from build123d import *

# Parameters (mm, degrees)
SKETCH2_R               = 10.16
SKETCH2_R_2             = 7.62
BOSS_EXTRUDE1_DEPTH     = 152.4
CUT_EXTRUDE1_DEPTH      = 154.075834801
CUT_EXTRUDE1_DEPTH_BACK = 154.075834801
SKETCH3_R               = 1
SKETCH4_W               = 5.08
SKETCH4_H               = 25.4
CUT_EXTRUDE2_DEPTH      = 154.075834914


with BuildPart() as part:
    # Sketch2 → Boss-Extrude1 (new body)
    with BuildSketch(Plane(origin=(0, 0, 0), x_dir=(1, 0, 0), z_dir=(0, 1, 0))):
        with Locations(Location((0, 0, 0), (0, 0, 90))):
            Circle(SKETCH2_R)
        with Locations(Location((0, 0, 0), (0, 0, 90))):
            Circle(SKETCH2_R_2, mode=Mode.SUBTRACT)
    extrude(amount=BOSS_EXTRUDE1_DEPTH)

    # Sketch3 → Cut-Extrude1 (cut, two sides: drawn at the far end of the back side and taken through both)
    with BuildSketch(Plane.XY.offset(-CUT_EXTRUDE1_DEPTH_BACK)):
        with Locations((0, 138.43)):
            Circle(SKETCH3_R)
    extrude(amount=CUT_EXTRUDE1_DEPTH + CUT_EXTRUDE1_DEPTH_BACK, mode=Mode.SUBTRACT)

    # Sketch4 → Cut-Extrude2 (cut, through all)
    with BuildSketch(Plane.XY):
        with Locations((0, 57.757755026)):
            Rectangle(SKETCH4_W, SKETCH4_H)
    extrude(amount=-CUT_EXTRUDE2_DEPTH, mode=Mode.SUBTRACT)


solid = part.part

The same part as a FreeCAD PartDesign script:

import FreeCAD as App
import Part
import Sketcher
from FreeCAD import Vector
Q = App.Units.Quantity


def add_polygon(sketch, points):
    """Adds a closed chain of lines whose ends are joined by coincident constraints."""
    first, n = sketch.GeometryCount, len(points)
    for a, b in zip(points, points[1:] + points[:1]):
        sketch.addGeometry(Part.LineSegment(App.Vector(*a, 0), App.Vector(*b, 0)), False)
    for i in range(n):
        sketch.addConstraint(Sketcher.Constraint("Coincident", first + i, 2, first + (i + 1) % n, 1))

doc = App.newDocument("Part")
body = doc.addObject("PartDesign::Body", "Body")

# Sketch on XZ plane
sketch1 = body.newObject("Sketcher::SketchObject", "Sketch")
sketch1.AttachmentSupport = (doc.getObject("XZ_Plane"), [""])
sketch1.MapMode = "FlatFace"
sketch1.addGeometry([
    Part.Circle(Vector(0, 0, 0), Vector(0, 0, 1), 10),
    Part.Circle(Vector(0, 0, 0), Vector(0, 0, 1), 8),
], False)
sketch1.addConstraint([
    Sketcher.Constraint("Coincident", 0, 3, -1, 1),
    Sketcher.Constraint("Coincident", 1, 3, -1, 1),
    Sketcher.Constraint("Diameter", 0, Q("0.8 in")),
    Sketcher.Constraint("Diameter", 1, Q("0.6 in")),
])
pad1 = body.newObject("PartDesign::Pad", "Pad")
pad1.Profile = sketch1
pad1.Length = Q("6 in")
pad1.Reversed = True

# Sketch on XY plane
sketch2 = body.newObject("Sketcher::SketchObject", "Sketch001")
sketch2.AttachmentSupport = (doc.getObject("XY_Plane"), [""])
sketch2.MapMode = "FlatFace"
sketch2.addGeometry(Part.Circle(Vector(0, 138.4, 0), Vector(0, 0, 1), 1), False)
sketch2.addConstraint([
    Sketcher.Constraint("PointOnObject", 0, 3, -2),
    Sketcher.Constraint("Diameter", 0, 2.0),
    Sketcher.Constraint("DistanceY", -1, 1, 0, 3, Q("5.45 in")),
])
pocket1 = body.newObject("PartDesign::Pocket", "Pocket")
pocket1.Profile = sketch2
pocket1.Type = "ThroughAll"
pocket1.Midplane = True

# Sketch on XY plane
sketch3 = body.newObject("Sketcher::SketchObject", "Sketch002")
sketch3.AttachmentSupport = (doc.getObject("XY_Plane"), [""])
sketch3.MapMode = "FlatFace"
add_polygon(sketch3, [(-3, 70), (-3, 45), (3, 45), (3, 70)])  # lines 0-3
sketch3.addConstraint([
    Sketcher.Constraint("Vertical", 0),
    Sketcher.Constraint("Horizontal", 1),
    Sketcher.Constraint("Vertical", 2),
    Sketcher.Constraint("Horizontal", 3),
    Sketcher.Constraint("DistanceY", 0, 2, 0, 1, Q("1 in")),
    Sketcher.Constraint("DistanceX", 1, 1, 1, 2, Q("0.2 in")),
    Sketcher.Constraint("DistanceX", 0, 2, -1, 1, Q("0.1 in")),
    Sketcher.Constraint("DistanceY", -1, 1, 0, 2, 45.057755),
])
pocket2 = body.newObject("PartDesign::Pocket", "Pocket001")
pocket2.Profile = sketch3
pocket2.Type = "ThroughAll"

doc.recompute()
